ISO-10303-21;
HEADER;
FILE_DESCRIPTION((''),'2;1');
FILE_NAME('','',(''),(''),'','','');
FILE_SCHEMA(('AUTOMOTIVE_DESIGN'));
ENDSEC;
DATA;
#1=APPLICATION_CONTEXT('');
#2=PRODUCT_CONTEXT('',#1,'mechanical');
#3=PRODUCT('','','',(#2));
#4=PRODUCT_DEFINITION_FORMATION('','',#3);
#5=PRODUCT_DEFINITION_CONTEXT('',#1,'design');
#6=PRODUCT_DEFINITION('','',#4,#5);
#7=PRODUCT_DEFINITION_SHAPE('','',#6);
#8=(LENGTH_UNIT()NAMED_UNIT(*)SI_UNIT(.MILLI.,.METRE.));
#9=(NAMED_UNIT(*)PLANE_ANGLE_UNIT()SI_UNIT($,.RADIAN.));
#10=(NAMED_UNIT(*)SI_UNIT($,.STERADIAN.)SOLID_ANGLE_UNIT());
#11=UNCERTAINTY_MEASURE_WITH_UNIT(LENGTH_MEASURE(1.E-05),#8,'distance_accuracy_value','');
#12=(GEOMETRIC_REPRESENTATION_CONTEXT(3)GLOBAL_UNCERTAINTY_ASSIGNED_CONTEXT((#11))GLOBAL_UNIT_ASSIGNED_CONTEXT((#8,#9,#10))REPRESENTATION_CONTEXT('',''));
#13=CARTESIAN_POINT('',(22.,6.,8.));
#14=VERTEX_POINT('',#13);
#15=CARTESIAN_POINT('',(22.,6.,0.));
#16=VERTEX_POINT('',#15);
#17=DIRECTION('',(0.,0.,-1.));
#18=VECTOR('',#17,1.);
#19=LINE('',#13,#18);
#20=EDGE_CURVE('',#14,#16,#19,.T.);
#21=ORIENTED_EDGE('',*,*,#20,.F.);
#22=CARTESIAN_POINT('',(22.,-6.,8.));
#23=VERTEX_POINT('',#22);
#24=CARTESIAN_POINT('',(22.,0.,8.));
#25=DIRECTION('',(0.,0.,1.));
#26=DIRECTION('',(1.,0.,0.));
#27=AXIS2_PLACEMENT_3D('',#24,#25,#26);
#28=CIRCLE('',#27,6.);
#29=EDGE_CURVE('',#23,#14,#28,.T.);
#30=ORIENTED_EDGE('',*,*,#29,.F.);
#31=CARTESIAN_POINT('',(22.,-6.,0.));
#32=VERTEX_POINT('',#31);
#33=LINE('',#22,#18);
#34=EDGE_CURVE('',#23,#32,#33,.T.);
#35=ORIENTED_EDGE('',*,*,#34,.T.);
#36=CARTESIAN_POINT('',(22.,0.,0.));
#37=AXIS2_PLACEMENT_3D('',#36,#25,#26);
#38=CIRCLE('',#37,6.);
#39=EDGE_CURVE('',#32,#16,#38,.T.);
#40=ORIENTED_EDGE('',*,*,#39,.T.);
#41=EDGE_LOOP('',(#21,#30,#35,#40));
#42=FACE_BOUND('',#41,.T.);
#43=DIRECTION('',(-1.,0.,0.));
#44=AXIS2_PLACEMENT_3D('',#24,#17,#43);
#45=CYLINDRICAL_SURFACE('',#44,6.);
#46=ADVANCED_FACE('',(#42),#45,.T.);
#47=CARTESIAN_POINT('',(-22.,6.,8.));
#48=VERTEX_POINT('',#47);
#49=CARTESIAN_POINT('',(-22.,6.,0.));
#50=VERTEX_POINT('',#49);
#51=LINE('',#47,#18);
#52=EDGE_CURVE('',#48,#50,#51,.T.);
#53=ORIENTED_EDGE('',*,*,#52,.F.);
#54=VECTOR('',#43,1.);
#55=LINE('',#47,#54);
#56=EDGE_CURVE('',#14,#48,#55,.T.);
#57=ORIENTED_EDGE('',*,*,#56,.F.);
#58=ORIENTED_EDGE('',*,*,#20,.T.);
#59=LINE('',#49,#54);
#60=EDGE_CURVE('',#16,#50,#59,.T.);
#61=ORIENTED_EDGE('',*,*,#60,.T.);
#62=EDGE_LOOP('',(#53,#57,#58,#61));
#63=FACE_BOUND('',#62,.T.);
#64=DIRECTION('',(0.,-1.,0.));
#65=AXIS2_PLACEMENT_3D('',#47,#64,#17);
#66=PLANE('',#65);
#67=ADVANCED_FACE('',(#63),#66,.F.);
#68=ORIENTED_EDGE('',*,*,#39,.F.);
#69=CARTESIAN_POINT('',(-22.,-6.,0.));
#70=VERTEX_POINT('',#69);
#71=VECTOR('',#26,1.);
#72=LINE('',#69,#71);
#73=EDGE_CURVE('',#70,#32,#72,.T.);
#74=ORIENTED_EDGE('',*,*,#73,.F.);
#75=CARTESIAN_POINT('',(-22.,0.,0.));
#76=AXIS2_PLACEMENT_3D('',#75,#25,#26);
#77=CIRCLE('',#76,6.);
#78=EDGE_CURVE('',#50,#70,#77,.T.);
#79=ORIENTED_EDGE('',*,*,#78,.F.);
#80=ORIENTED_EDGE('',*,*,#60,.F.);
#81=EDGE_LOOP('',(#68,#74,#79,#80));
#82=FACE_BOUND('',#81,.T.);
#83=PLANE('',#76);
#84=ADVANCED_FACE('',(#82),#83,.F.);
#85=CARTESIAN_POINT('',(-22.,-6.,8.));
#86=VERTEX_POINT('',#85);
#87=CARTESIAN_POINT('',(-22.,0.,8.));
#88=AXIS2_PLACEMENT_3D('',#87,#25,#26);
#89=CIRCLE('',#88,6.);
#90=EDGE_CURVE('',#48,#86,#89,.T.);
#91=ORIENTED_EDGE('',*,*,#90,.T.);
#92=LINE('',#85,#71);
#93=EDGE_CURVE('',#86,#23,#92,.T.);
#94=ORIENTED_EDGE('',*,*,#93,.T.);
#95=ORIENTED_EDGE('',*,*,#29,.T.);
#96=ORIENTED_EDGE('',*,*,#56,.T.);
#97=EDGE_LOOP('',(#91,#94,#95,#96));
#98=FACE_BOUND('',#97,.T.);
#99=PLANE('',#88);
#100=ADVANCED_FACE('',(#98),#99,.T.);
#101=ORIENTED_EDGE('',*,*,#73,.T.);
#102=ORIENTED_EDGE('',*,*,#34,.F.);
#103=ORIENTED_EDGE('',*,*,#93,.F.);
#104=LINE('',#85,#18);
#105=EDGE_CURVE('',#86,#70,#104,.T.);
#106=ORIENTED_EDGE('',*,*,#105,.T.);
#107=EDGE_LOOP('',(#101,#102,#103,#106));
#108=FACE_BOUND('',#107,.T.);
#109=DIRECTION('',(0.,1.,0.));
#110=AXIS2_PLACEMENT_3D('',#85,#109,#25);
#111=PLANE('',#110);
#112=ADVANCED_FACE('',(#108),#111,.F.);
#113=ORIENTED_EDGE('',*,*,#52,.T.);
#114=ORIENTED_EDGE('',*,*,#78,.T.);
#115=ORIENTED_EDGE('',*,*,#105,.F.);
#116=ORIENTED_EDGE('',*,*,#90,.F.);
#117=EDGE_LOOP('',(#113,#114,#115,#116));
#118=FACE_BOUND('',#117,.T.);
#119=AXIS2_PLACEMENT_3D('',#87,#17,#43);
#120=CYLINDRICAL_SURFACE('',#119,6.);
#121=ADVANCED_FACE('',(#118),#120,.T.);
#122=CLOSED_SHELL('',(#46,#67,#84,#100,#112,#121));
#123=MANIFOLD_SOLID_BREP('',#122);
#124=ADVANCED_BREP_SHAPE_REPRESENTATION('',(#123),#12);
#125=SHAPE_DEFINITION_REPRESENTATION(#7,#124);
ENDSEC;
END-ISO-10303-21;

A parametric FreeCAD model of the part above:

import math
import FreeCAD as App
import Part
import Sketcher
Q = App.Units.Quantity

doc = App.newDocument("Part")
params = doc.addObject("Spreadsheet::Sheet", "Params")
for row, (alias, value) in enumerate([
    ("sketch1_radius", "6 mm"),
    ("sketch1_width", "44 mm"),
    ("pad1_length", "8 mm"),
], start=1):
    params.set(f"A{row}", alias)
    params.set(f"B{row}", "=" + value)
    params.setAlias(f"B{row}", alias)

body = doc.addObject("PartDesign::Body", "Body")

# Sketch on XY plane
sketch1 = body.newObject("Sketcher::SketchObject", "Sketch")
sketch1.AttachmentSupport = (doc.getObject("XY_Plane"), [""])
sketch1.MapMode = "FlatFace"
sketch1.addGeometry([
    Part.LineSegment(App.Vector(22, 6, 0), App.Vector(-22, 6, 0)),
    Part.ArcOfCircle(Part.Circle(App.Vector(-22, 0, 0), App.Vector(0, 0, 1), 6), math.radians(90), math.radians(270)),
    Part.LineSegment(App.Vector(-22, -6, 0), App.Vector(22, -6, 0)),
    Part.ArcOfCircle(Part.Circle(App.Vector(22, 0, 0), App.Vector(0, 0, 1), 6), math.radians(-90), math.radians(90)),
], False)
sketch1.addConstraint([
    Sketcher.Constraint("Tangent", 0, 2, 1, 1),
    Sketcher.Constraint("Tangent", 1, 2, 2, 1),
    Sketcher.Constraint("Tangent", 2, 2, 3, 1),
    Sketcher.Constraint("Tangent", 3, 2, 0, 1),
    Sketcher.Constraint("Horizontal", 0),
    Sketcher.Constraint("Horizontal", 2),
    Sketcher.Constraint("Symmetric", 1, 3, 3, 3, -1, 1),
    Sketcher.Constraint("Radius", 1, Q("6 mm")),
    Sketcher.Constraint("DistanceX", 0, 2, 0, 1, Q("44 mm")),
])
sketch1.setExpression("Constraints[7]", "Params.sketch1_radius")
sketch1.setExpression("Constraints[8]", "Params.sketch1_width")
pad1 = body.newObject("PartDesign::Pad", "Pad")
pad1.Profile = sketch1
pad1.setExpression("Length", "Params.pad1_length")

doc.recompute()
